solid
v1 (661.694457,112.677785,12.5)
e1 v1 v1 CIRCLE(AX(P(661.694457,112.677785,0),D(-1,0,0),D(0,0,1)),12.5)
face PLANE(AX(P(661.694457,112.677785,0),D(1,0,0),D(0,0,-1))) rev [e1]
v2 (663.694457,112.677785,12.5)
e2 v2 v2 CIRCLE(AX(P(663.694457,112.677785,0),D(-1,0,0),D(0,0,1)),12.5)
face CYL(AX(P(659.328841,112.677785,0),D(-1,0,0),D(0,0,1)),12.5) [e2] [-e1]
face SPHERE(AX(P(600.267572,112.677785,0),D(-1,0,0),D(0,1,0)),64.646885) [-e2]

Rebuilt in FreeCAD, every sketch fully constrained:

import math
import FreeCAD as App
import Part
import Sketcher

V = App.Vector

doc = App.newDocument("Part")
body = doc.addObject("PartDesign::Body", "Body")

sketch1 = body.newObject("Sketcher::SketchObject", "Sketch")
sketch1.AttachmentSupport = (doc.getObject("XY_Plane"), [""])
sketch1.MapMode = "FlatFace"
sketch1.addGeometry([
    Part.LineSegment(V(661.7, 125.2, 0), V(661.7, 112.7, 0)),
    Part.LineSegment(V(661.7, 112.7, 0), V(664.9, 112.7, 0)),
    Part.ArcOfCircle(Part.Circle(V(600.3, 112.7, 0), V(0, 0, 1), 64.6), math.radians(0), math.radians(11.15)),
    Part.LineSegment(V(663.7, 125.2, 0), V(661.7, 125.2, 0)),
], False)
sketch1.addGeometry(Part.LineSegment(V(600.3, 112.7, 0), V(664.9, 112.7, 0)), True)
sketch1.addConstraint([
    Sketcher.Constraint("Coincident", 0, 2, 1, 1),
    Sketcher.Constraint("Coincident", 1, 2, 2, 1),
    Sketcher.Constraint("Coincident", 2, 2, 3, 1),
    Sketcher.Constraint("Coincident", 3, 2, 0, 1),
    Sketcher.Constraint("Vertical", 0),
    Sketcher.Constraint("Horizontal", 1),
    Sketcher.Constraint("Horizontal", 3),
    Sketcher.Constraint("Horizontal", 4),
    Sketcher.Constraint("Coincident", 4, 1, 2, 3),
    Sketcher.Constraint("Coincident", 4, 2, 1, 2),
    Sketcher.Constraint("DistanceX", 3, 2, 3, 1, 2.0),
    Sketcher.Constraint("DistanceY", 0, 2, 0, 1, 12.5),
    Sketcher.Constraint("DistanceX", 1, 1, 1, 2, 3.22),
    Sketcher.Constraint("DistanceX", -1, 1, 2, 3, 600.267572),
    Sketcher.Constraint("DistanceY", -1, 1, 2, 3, 112.677785),
])
revolution = body.newObject("PartDesign::Revolution", "Revolution")
revolution.Profile = sketch1
revolution.ReferenceAxis = (sketch1, ["Axis0"])
revolution.Angle = 360

doc.recompute()
